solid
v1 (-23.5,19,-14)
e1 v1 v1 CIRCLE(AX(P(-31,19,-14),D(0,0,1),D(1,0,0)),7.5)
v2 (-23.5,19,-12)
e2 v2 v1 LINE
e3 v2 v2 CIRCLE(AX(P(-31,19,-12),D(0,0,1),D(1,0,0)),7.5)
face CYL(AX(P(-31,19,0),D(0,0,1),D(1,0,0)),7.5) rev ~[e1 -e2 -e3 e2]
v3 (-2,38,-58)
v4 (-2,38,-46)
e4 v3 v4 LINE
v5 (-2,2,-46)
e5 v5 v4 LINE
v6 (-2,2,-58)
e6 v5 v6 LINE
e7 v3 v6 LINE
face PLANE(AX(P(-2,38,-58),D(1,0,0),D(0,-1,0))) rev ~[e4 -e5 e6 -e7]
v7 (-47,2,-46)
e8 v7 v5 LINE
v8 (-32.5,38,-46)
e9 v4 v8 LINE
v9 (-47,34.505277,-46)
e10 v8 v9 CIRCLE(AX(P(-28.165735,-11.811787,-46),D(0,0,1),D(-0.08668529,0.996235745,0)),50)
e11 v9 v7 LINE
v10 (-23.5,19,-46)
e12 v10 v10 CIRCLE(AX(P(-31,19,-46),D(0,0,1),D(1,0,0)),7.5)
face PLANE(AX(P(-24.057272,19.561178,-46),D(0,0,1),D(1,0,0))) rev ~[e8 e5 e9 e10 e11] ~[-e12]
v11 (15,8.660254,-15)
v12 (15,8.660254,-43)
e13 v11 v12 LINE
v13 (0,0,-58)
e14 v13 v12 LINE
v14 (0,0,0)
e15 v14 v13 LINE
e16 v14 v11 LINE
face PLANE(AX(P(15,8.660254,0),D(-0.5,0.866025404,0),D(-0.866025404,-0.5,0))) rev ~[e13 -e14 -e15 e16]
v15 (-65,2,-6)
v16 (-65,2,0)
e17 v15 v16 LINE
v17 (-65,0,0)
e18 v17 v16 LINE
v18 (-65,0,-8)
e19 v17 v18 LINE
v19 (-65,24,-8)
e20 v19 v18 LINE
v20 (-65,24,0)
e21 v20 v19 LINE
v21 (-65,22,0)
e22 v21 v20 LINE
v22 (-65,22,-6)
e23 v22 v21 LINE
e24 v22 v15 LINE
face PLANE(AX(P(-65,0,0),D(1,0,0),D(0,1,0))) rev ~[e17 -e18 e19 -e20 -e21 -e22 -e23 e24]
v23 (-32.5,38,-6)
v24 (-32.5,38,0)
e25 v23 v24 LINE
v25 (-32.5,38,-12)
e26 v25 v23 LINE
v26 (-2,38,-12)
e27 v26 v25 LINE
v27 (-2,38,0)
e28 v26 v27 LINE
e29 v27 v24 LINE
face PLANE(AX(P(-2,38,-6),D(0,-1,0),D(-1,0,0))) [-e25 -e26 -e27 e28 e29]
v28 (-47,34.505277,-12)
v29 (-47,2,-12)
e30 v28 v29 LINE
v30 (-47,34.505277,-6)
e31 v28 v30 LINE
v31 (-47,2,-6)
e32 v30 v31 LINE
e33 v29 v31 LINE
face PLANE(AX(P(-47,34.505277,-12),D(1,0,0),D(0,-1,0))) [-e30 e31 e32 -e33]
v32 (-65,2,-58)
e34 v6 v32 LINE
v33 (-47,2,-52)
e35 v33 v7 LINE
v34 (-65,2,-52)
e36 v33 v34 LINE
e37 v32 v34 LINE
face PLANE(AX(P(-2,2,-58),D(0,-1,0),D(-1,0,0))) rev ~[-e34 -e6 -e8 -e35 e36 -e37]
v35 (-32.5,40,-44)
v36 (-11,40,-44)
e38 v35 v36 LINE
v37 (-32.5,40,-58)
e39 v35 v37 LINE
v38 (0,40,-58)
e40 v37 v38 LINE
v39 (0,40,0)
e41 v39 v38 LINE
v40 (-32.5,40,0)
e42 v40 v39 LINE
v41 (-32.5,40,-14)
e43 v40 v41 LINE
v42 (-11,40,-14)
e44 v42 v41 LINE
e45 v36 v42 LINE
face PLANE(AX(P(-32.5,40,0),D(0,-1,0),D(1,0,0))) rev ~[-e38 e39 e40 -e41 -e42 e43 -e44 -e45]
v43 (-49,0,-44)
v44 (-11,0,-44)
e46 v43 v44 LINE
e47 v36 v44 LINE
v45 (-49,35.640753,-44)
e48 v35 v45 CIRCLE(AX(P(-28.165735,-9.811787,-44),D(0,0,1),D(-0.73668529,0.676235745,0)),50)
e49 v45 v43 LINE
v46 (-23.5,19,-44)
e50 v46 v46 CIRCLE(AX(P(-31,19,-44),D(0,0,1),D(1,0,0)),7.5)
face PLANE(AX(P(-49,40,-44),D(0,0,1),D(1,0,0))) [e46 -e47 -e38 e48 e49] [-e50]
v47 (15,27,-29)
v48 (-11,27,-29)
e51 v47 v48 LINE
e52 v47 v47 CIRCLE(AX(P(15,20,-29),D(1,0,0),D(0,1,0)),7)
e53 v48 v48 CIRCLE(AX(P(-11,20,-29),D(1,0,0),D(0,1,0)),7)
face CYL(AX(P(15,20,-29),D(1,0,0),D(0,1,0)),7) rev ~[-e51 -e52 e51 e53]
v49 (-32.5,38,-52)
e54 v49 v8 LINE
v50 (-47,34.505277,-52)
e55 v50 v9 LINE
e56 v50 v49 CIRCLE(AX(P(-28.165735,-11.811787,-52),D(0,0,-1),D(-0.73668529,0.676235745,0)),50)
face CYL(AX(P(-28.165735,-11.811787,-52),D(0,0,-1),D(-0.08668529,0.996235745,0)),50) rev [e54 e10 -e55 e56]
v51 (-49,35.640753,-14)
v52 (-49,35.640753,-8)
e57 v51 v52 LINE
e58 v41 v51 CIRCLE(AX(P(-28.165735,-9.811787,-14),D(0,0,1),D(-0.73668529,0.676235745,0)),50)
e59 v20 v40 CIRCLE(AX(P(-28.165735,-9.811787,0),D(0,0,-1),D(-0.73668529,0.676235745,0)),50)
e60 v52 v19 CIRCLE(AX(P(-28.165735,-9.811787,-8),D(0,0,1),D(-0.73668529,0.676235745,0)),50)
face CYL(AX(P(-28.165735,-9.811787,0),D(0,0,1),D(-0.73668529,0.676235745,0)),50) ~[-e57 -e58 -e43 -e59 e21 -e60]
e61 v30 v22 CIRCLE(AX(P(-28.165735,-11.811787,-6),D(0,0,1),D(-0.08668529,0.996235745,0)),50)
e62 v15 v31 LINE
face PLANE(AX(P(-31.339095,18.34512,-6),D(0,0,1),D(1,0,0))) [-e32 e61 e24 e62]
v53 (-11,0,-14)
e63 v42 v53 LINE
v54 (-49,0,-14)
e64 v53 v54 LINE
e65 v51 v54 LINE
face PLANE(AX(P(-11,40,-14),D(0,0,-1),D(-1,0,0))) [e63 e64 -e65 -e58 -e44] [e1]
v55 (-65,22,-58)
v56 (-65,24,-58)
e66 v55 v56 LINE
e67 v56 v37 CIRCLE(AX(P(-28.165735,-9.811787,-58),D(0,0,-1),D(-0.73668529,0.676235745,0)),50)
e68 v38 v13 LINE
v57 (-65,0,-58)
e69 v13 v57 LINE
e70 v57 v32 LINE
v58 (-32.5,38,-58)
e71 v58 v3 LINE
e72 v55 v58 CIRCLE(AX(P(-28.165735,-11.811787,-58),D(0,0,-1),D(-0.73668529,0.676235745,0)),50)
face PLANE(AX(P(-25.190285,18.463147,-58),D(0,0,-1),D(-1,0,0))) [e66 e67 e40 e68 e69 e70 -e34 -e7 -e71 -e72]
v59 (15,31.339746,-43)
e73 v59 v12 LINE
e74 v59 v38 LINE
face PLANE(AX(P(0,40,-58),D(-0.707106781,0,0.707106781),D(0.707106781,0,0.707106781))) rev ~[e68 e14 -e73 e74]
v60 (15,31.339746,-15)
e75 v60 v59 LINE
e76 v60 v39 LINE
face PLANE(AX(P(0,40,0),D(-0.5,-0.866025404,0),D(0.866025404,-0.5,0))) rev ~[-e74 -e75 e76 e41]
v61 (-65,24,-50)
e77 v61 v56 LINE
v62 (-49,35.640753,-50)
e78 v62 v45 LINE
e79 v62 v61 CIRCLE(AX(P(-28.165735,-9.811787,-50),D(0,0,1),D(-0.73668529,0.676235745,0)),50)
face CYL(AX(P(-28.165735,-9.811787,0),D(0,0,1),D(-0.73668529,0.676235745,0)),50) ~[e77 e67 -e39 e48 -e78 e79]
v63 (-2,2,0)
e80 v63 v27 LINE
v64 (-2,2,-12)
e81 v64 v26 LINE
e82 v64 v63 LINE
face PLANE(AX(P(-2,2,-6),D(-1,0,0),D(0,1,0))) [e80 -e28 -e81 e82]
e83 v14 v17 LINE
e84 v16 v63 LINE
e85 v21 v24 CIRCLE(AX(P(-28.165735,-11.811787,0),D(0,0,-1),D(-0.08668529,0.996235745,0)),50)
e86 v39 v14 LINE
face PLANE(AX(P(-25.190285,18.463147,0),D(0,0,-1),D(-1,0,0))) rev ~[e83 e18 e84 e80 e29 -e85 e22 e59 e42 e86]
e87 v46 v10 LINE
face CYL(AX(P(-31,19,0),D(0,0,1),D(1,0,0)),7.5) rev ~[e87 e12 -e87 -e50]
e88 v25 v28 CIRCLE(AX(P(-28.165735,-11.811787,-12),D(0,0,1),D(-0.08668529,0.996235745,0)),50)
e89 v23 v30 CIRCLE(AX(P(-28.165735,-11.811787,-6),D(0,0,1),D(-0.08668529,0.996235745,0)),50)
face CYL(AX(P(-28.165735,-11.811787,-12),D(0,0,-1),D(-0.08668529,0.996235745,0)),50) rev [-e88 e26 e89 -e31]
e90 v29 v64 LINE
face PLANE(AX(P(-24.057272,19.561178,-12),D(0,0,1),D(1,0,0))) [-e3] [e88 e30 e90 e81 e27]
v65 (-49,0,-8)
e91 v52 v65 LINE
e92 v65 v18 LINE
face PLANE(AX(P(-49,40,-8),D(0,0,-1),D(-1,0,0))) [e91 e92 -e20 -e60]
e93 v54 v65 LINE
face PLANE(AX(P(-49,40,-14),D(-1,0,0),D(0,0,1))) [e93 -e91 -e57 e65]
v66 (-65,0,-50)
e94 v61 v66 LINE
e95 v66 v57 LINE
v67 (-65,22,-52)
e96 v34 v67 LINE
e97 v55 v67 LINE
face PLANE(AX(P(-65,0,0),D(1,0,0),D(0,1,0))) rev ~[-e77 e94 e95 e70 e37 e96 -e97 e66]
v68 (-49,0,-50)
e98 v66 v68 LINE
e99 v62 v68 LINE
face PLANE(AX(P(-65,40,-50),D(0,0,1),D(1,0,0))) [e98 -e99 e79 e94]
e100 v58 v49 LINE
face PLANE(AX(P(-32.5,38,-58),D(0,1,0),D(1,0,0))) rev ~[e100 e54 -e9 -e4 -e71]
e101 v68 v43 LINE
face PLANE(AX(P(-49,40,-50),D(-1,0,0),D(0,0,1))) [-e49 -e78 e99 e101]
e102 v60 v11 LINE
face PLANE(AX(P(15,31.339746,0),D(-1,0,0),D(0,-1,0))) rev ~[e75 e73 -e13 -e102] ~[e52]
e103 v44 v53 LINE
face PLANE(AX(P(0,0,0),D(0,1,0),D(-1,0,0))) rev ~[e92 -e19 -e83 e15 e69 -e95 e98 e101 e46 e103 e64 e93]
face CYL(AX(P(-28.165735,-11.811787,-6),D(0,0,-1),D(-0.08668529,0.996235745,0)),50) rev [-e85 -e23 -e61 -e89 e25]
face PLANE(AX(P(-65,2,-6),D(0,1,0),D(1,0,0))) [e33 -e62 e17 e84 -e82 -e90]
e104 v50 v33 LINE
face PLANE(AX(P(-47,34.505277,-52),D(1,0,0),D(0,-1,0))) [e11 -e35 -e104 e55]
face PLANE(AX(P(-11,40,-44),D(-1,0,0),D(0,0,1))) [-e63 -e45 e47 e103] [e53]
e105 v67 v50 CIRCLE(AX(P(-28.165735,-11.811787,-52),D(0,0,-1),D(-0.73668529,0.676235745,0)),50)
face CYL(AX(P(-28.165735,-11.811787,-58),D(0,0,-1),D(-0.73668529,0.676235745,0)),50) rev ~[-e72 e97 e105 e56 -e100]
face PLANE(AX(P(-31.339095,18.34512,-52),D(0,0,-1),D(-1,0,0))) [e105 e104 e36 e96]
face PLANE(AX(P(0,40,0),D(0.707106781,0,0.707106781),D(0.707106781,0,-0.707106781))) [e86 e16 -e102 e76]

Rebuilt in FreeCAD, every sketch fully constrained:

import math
import FreeCAD as App
import Part
import Sketcher
from FreeCAD import Vector
Q = App.Units.Quantity


def add_polygon(sketch, points):
    """Adds a closed chain of lines whose ends are joined by coincident constraints."""
    first, n = sketch.GeometryCount, len(points)
    for a, b in zip(points, points[1:] + points[:1]):
        sketch.addGeometry(Part.LineSegment(App.Vector(*a, 0), App.Vector(*b, 0)), False)
    for i in range(n):
        sketch.addConstraint(Sketcher.Constraint("Coincident", first + i, 2, first + (i + 1) % n, 1))

doc = App.newDocument("Part")
params = doc.addObject("Spreadsheet::Sheet", "Params")
for row, (alias, value) in enumerate([
    ("sketch1_diameter", "15 mm"),
    ("sketch1_radius", "50 mm"),
    ("sketch1_width", "65 mm"),
    ("sketch1_height", "24 mm"),
    ("sketch1_width2", "32.5 mm"),
    ("pad1_length", "58 mm"),
    ("sketch2_width", "16 mm"),
    ("sketch2_width2", "38 mm"),
    ("sketch2_width3", "15 mm"),
    ("sketch2_height", "42 mm"),
    ("sketch2_height2", "6 mm"),
    ("pocket1_length", "58 mm"),
    ("sketch3_diameter", "14 mm"),
    ("pocket2_length", "58 mm"),
    ("sketch4_diameter", "15 mm"),
    ("sketch4_radius", "50 mm"),
    ("sketch4_width", "63 mm"),
    ("sketch4_height", "20 mm"),
    ("sketch4_height2", "36 mm"),
    ("pocket3_length", "96.859272 mm"),
    ("pocket3_length2", "6 mm"),
    ("sketch5_radius", "50 mm"),
    ("sketch5_width", "45 mm"),
    ("sketch5_height", "36 mm"),
    ("sketch5_width2", "30.5 mm"),
    ("pocket4_length", "6 mm"),
    ("sketch6_radius", "50 mm"),
    ("sketch6_width", "63 mm"),
    ("sketch6_height", "20 mm"),
    ("sketch6_height2", "36 mm"),
    ("sketch6_width2", "30.5 mm"),
    ("pocket5_length", "6 mm"),
    ("sketch7_radius", "50 mm"),
    ("sketch7_width", "45 mm"),
    ("sketch7_height", "36 mm"),
    ("sketch7_width2", "30.5 mm"),
    ("pocket6_length", "6 mm"),
], start=1):
    params.set(f"A{row}", alias)
    params.set(f"B{row}", "=" + value)
    params.setAlias(f"B{row}", alias)

body = doc.addObject("PartDesign::Body", "Body")

sketch1 = doc.addObject("Sketcher::SketchObject", "Sketch")
body.addObject(sketch1)
sketch1.AttachmentSupport = (doc.XY_Plane, [""])
sketch1.MapMode = "FlatFace"
sketch1.addGeometry([
    Part.LineSegment(Vector(-65, 0, 0), Vector(0, 0, 0)),
    Part.LineSegment(Vector(0, 0, 0), Vector(15, 9, 0)),
    Part.LineSegment(Vector(15, 9, 0), Vector(15, 31, 0)),
    Part.LineSegment(Vector(15, 31, 0), Vector(0, 40, 0)),
    Part.LineSegment(Vector(0, 40, 0), Vector(-32, 40, 0)),
    Part.ArcOfCircle(Part.Circle(Vector(-28, -10, 0), Vector(0, 0, 1), 50), math.radians(95), math.radians(137)),
    Part.LineSegment(Vector(-65, 24, 0), Vector(-65, 0, 0)),
    Part.Circle(Vector(-31, 19, 0), Vector(0, 0, 1), 8),
], False)
sketch1.addConstraint([
    Sketcher.Constraint("Coincident", 0, 2, 1, 1),
    Sketcher.Constraint("Coincident", 1, 2, 2, 1),
    Sketcher.Constraint("Coincident", 2, 2, 3, 1),
    Sketcher.Constraint("Coincident", 3, 2, 4, 1),
    Sketcher.Constraint("Coincident", 4, 2, 5, 1),
    Sketcher.Constraint("Coincident", 5, 2, 6, 1),
    Sketcher.Constraint("Coincident", 6, 2, 0, 1),
    Sketcher.Constraint("Horizontal", 0),
    Sketcher.Constraint("Vertical", 2),
    Sketcher.Constraint("Horizontal", 4),
    Sketcher.Constraint("Vertical", 6),
    Sketcher.Constraint("Coincident", 0, 2, -1, 1),
    Sketcher.Constraint("PointOnObject", 3, 2, -2),
    Sketcher.Constraint("Equal", 1, 3),
    Sketcher.Constraint("Diameter", 7, 15.0),
    Sketcher.Constraint("Radius", 5, 50.0),
    Sketcher.Constraint("DistanceX", 0, 1, 0, 2, 65.0),
    Sketcher.Constraint("DistanceY", 6, 2, 6, 1, 24.0),
    Sketcher.Constraint("Angle", 1, Q("30 deg")),
    Sketcher.Constraint("DistanceX", 4, 2, 4, 1, 32.5),
    Sketcher.Constraint("DistanceX", 7, 3, -1, 1, 31.0),
    Sketcher.Constraint("DistanceY", -1, 1, 7, 3, 19.0),
    Sketcher.Constraint("DistanceX", -1, 1, 1, 2, 15.0),
    Sketcher.Constraint("DistanceY", -1, 1, 3, 2, 40.0),
])
sketch1.setExpression("Constraints[14]", "Params.sketch1_diameter")
sketch1.setExpression("Constraints[15]", "Params.sketch1_radius")
sketch1.setExpression("Constraints[16]", "Params.sketch1_width")
sketch1.setExpression("Constraints[17]", "Params.sketch1_height")
sketch1.setExpression("Constraints[19]", "Params.sketch1_width2")
pad1 = doc.addObject("PartDesign::Pad", "Pad")
body.addObject(pad1)
pad1.Profile = sketch1
pad1.setExpression("Length", "Params.pad1_length")
pad1.Reversed = True

sketch2 = doc.addObject("Sketcher::SketchObject", "Sketch001")
body.addObject(sketch2)
sketch2.AttachmentSupport = (doc.XZ_Plane, [""])
sketch2.MapMode = "FlatFace"
sketch2.AttachmentOffset = App.Placement(Vector(0, 0, -40), App.Rotation())
add_polygon(sketch2, [(-49, -50), (-65, -50), (-65, -8), (-49, -8), (-49, -14), (-11, -14), (-11, -44), (-49, -44)])
add_polygon(sketch2, [(0, -58), (15, -43), (15, -58)])
add_polygon(sketch2, [(15, -15), (0, 0), (15, 0)])
sketch2.addConstraint([
    Sketcher.Constraint("Horizontal", 0),
    Sketcher.Constraint("Vertical", 1),
    Sketcher.Constraint("Horizontal", 2),
    Sketcher.Constraint("Vertical", 3),
    Sketcher.Constraint("Horizontal", 4),
    Sketcher.Constraint("Vertical", 5),
    Sketcher.Constraint("Horizontal", 6),
    Sketcher.Constraint("Vertical", 7),
    Sketcher.Constraint("Vertical", 9),
    Sketcher.Constraint("Horizontal", 10),
    Sketcher.Constraint("Horizontal", 12),
    Sketcher.Constraint("Vertical", 13),
    Sketcher.Constraint("Coincident", 11, 2, -1, 1),
    Sketcher.Constraint("PointOnObject", 10, 2, -2),
    Sketcher.Constraint("Perpendicular", 8, 11),
    Sketcher.Constraint("Vertical", 3, 2, 6, 2),
    Sketcher.Constraint("Vertical", 9, 2, 12, 2),
    Sketcher.Constraint("Equal", 3, 7),
    Sketcher.Constraint("Equal", 12, 9),
    Sketcher.Constraint("DistanceX", 0, 2, 0, 1, 16.0),
    Sketcher.Constraint("DistanceX", 4, 1, 4, 2, 38.0),
    Sketcher.Constraint("DistanceX", 10, 2, 10, 1, 15.0),
    Sketcher.Constraint("DistanceY", 1, 1, 1, 2, 42.0),
    Sketcher.Constraint("DistanceY", 3, 2, 3, 1, 6.0),
    Sketcher.Constraint("DistanceX", 0, 2, -1, 1, 65.0),
    Sketcher.Constraint("DistanceY", 0, 2, -1, 1, 50.0),
    Sketcher.Constraint("DistanceY", 8, 2, -1, 1, 43.0),
])
sketch2.setExpression("Constraints[33]", "Params.sketch2_width")
sketch2.setExpression("Constraints[34]", "Params.sketch2_width2")
sketch2.setExpression("Constraints[35]", "Params.sketch2_width3")
sketch2.setExpression("Constraints[36]", "Params.sketch2_height")
sketch2.setExpression("Constraints[37]", "Params.sketch2_height2")
pocket1 = doc.addObject("PartDesign::Pocket", "Pocket")
body.addObject(pocket1)
pocket1.Profile = sketch2
pocket1.setExpression("Length", "Params.pocket1_length")
pocket1.Reversed = True

sketch3 = doc.addObject("Sketcher::SketchObject", "Sketch002")
body.addObject(sketch3)
sketch3.AttachmentSupport = (doc.YZ_Plane, [""])
sketch3.MapMode = "FlatFace"
sketch3.AttachmentOffset = App.Placement(Vector(0, 0, 15), App.Rotation())
sketch3.addGeometry(Part.Circle(Vector(20, -29, 0), Vector(0, 0, 1), 7), False)
sketch3.addConstraint([
    Sketcher.Constraint("Diameter", 0, 14.0),
    Sketcher.Constraint("DistanceX", -1, 1, 0, 3, 20.0),
    Sketcher.Constraint("DistanceY", 0, 3, -1, 1, 29.0),
])
sketch3.setExpression("Constraints[0]", "Params.sketch3_diameter")
pocket2 = doc.addObject("PartDesign::Pocket", "Pocket001")
body.addObject(pocket2)
pocket2.Profile = sketch3
pocket2.setExpression("Length", "Params.pocket2_length")

sketch4 = doc.addObject("Sketcher::SketchObject", "Sketch003")
body.addObject(sketch4)
sketch4.AttachmentSupport = (doc.XY_Plane, [""])
sketch4.MapMode = "FlatFace"
sketch4.addGeometry([
    Part.LineSegment(Vector(-65, 22, 0), Vector(-65, 2, 0)),
    Part.LineSegment(Vector(-65, 2, 0), Vector(-2, 2, 0)),
    Part.LineSegment(Vector(-2, 2, 0), Vector(-2, 38, 0)),
    Part.LineSegment(Vector(-2, 38, 0), Vector(-32, 38, 0)),
    Part.ArcOfCircle(Part.Circle(Vector(-28, -12, 0), Vector(0, 0, 1), 50), math.radians(95), math.radians(137)),
    Part.Circle(Vector(-31, 19, 0), Vector(0, 0, 1), 8),
], False)
sketch4.addConstraint([
    Sketcher.Constraint("Coincident", 0, 2, 1, 1),
    Sketcher.Constraint("Coincident", 1, 2, 2, 1),
    Sketcher.Constraint("Coincident", 2, 2, 3, 1),
    Sketcher.Constraint("Coincident", 3, 2, 4, 1),
    Sketcher.Constraint("Coincident", 4, 2, 0, 1),
    Sketcher.Constraint("Vertical", 0),
    Sketcher.Constraint("Horizontal", 1),
    Sketcher.Constraint("Vertical", 2),
    Sketcher.Constraint("Horizontal", 3),
    Sketcher.Constraint("Diameter", 5, 15.0),
    Sketcher.Constraint("Radius", 4, 50.0),
    Sketcher.Constraint("DistanceX", 1, 1, 1, 2, 63.0),
    Sketcher.Constraint("DistanceY", 0, 2, 0, 1, 20.0),
    Sketcher.Constraint("DistanceY", 2, 1, 2, 2, 36.0),
    Sketcher.Constraint("DistanceX", 3, 2, 3, 1, 30.5),
    Sketcher.Constraint("DistanceX", 5, 3, -1, 1, 31.0),
    Sketcher.Constraint("DistanceY", -1, 1, 5, 3, 19.0),
    Sketcher.Constraint("DistanceX", 0, 2, -1, 1, 65.0),
    Sketcher.Constraint("DistanceY", -1, 1, 0, 2, 2.0),
])
sketch4.setExpression("Constraints[9]", "Params.sketch4_diameter")
sketch4.setExpression("Constraints[10]", "Params.sketch4_radius")
sketch4.setExpression("Constraints[11]", "Params.sketch4_width")
sketch4.setExpression("Constraints[12]", "Params.sketch4_height")
sketch4.setExpression("Constraints[13]", "Params.sketch4_height2")
pocket3 = doc.addObject("PartDesign::Pocket", "Pocket002")
body.addObject(pocket3)
pocket3.Profile = sketch4
pocket3.Type = "TwoLengths"
pocket3.setExpression("Length", "Params.pocket3_length")
pocket3.setExpression("Length2", "Params.pocket3_length2")
pocket3.Reversed = True

sketch5 = doc.addObject("Sketcher::SketchObject", "Sketch004")
body.addObject(sketch5)
sketch5.AttachmentSupport = (doc.XY_Plane, [""])
sketch5.MapMode = "FlatFace"
sketch5.AttachmentOffset = App.Placement(Vector(0, 0, -12), App.Rotation())
sketch5.addGeometry([
    Part.LineSegment(Vector(-47, 35, 0), Vector(-47, 2, 0)),
    Part.LineSegment(Vector(-47, 2, 0), Vector(-2, 2, 0)),
    Part.LineSegment(Vector(-2, 2, 0), Vector(-2, 38, 0)),
    Part.LineSegment(Vector(-2, 38, 0), Vector(-32, 38, 0)),
    Part.ArcOfCircle(Part.Circle(Vector(-28, -12, 0), Vector(0, 0, 1), 50), math.radians(94.97), math.radians(112.13)),
], False)
sketch5.addConstraint([
    Sketcher.Constraint("Coincident", 0, 2, 1, 1),
    Sketcher.Constraint("Coincident", 1, 2, 2, 1),
    Sketcher.Constraint("Coincident", 2, 2, 3, 1),
    Sketcher.Constraint("Coincident", 3, 2, 4, 1),
    Sketcher.Constraint("Coincident", 4, 2, 0, 1),
    Sketcher.Constraint("Vertical", 0),
    Sketcher.Constraint("Horizontal", 1),
    Sketcher.Constraint("Vertical", 2),
    Sketcher.Constraint("Horizontal", 3),
    Sketcher.Constraint("Radius", 4, 50.0),
    Sketcher.Constraint("DistanceX", 1, 1, 1, 2, 45.0),
    Sketcher.Constraint("DistanceY", 2, 1, 2, 2, 36.0),
    Sketcher.Constraint("DistanceX", 3, 2, 3, 1, 30.5),
    Sketcher.Constraint("DistanceX", 0, 2, -1, 1, 47.0),
    Sketcher.Constraint("DistanceY", -1, 1, 0, 2, 2.0),
    Sketcher.Constraint("DistanceY", 0, 2, 0, 1, 32.505277),
])
sketch5.setExpression("Constraints[9]", "Params.sketch5_radius")
sketch5.setExpression("Constraints[10]", "Params.sketch5_width")
sketch5.setExpression("Constraints[11]", "Params.sketch5_height")
sketch5.setExpression("Constraints[12]", "Params.sketch5_width2")
pocket4 = doc.addObject("PartDesign::Pocket", "Pocket003")
body.addObject(pocket4)
pocket4.Profile = sketch5
pocket4.setExpression("Length", "Params.pocket4_length")
pocket4.Reversed = True

sketch6 = doc.addObject("Sketcher::SketchObject", "Sketch005")
body.addObject(sketch6)
sketch6.AttachmentSupport = (doc.XY_Plane, [""])
sketch6.MapMode = "FlatFace"
sketch6.AttachmentOffset = App.Placement(Vector(0, 0, -58), App.Rotation())
sketch6.addGeometry([
    Part.LineSegment(Vector(-2, 2, 0), Vector(-65, 2, 0)),
    Part.LineSegment(Vector(-65, 2, 0), Vector(-65, 22, 0)),
    Part.ArcOfCircle(Part.Circle(Vector(-28, -12, 0), Vector(0, 0, 1), 50), math.radians(95), math.radians(137)),
    Part.LineSegment(Vector(-32, 38, 0), Vector(-2, 38, 0)),
    Part.LineSegment(Vector(-2, 38, 0), Vector(-2, 2, 0)),
], False)
sketch6.addConstraint([
    Sketcher.Constraint("Coincident", 0, 2, 1, 1),
    Sketcher.Constraint("Coincident", 1, 2, 2, 2),
    Sketcher.Constraint("Coincident", 2, 1, 3, 1),
    Sketcher.Constraint("Coincident", 3, 2, 4, 1),
    Sketcher.Constraint("Coincident", 4, 2, 0, 1),
    Sketcher.Constraint("Horizontal", 0),
    Sketcher.Constraint("Vertical", 1),
    Sketcher.Constraint("Horizontal", 3),
    Sketcher.Constraint("Vertical", 4),
    Sketcher.Constraint("Radius", 2, 50.0),
    Sketcher.Constraint("DistanceX", 0, 2, 0, 1, 63.0),
    Sketcher.Constraint("DistanceY", 1, 1, 1, 2, 20.0),
    Sketcher.Constraint("DistanceY", 4, 2, 4, 1, 36.0),
    Sketcher.Constraint("DistanceX", 3, 1, 3, 2, 30.5),
    Sketcher.Constraint("DistanceX", 0, 2, -1, 1, 65.0),
    Sketcher.Constraint("DistanceY", -1, 1, 0, 2, 2.0),
])
sketch6.setExpression("Constraints[9]", "Params.sketch6_radius")
sketch6.setExpression("Constraints[10]", "Params.sketch6_width")
sketch6.setExpression("Constraints[11]", "Params.sketch6_height")
sketch6.setExpression("Constraints[12]", "Params.sketch6_height2")
sketch6.setExpression("Constraints[13]", "Params.sketch6_width2")
pocket5 = doc.addObject("PartDesign::Pocket", "Pocket004")
body.addObject(pocket5)
pocket5.Profile = sketch6
pocket5.setExpression("Length", "Params.pocket5_length")
pocket5.Reversed = True

sketch7 = doc.addObject("Sketcher::SketchObject", "Sketch006")
body.addObject(sketch7)
sketch7.AttachmentSupport = (doc.XY_Plane, [""])
sketch7.MapMode = "FlatFace"
sketch7.AttachmentOffset = App.Placement(Vector(0, 0, -52), App.Rotation())
sketch7.addGeometry([
    Part.LineSegment(Vector(-47, 2, 0), Vector(-47, 35, 0)),
    Part.ArcOfCircle(Part.Circle(Vector(-28, -12, 0), Vector(0, 0, 1), 50), math.radians(94.97), math.radians(112.13)),
    Part.LineSegment(Vector(-32, 38, 0), Vector(-2, 38, 0)),
    Part.LineSegment(Vector(-2, 38, 0), Vector(-2, 2, 0)),
    Part.LineSegment(Vector(-2, 2, 0), Vector(-47, 2, 0)),
], False)
sketch7.addConstraint([
    Sketcher.Constraint("Coincident", 0, 2, 1, 2),
    Sketcher.Constraint("Coincident", 1, 1, 2, 1),
    Sketcher.Constraint("Coincident", 2, 2, 3, 1),
    Sketcher.Constraint("Coincident", 3, 2, 4, 1),
    Sketcher.Constraint("Coincident", 4, 2, 0, 1),
    Sketcher.Constraint("Vertical", 0),
    Sketcher.Constraint("Horizontal", 2),
    Sketcher.Constraint("Vertical", 3),
    Sketcher.Constraint("Horizontal", 4),
    Sketcher.Constraint("Radius", 1, 50.0),
    Sketcher.Constraint("DistanceX", 4, 2, 4, 1, 45.0),
    Sketcher.Constraint("DistanceY", 3, 2, 3, 1, 36.0),
    Sketcher.Constraint("DistanceX", 2, 1, 2, 2, 30.5),
    Sketcher.Constraint("DistanceX", 0, 2, -1, 1, 47.0),
    Sketcher.Constraint("DistanceY", -1, 1, 1, 1, 38.0),
    Sketcher.Constraint("DistanceY", 0, 1, 0, 2, 32.505277),
])
sketch7.setExpression("Constraints[9]", "Params.sketch7_radius")
sketch7.setExpression("Constraints[10]", "Params.sketch7_width")
sketch7.setExpression("Constraints[11]", "Params.sketch7_height")
sketch7.setExpression("Constraints[12]", "Params.sketch7_width2")
pocket6 = doc.addObject("PartDesign::Pocket", "Pocket005")
body.addObject(pocket6)
pocket6.Profile = sketch7
pocket6.setExpression("Length", "Params.pocket6_length")
pocket6.Reversed = True

doc.recompute()
